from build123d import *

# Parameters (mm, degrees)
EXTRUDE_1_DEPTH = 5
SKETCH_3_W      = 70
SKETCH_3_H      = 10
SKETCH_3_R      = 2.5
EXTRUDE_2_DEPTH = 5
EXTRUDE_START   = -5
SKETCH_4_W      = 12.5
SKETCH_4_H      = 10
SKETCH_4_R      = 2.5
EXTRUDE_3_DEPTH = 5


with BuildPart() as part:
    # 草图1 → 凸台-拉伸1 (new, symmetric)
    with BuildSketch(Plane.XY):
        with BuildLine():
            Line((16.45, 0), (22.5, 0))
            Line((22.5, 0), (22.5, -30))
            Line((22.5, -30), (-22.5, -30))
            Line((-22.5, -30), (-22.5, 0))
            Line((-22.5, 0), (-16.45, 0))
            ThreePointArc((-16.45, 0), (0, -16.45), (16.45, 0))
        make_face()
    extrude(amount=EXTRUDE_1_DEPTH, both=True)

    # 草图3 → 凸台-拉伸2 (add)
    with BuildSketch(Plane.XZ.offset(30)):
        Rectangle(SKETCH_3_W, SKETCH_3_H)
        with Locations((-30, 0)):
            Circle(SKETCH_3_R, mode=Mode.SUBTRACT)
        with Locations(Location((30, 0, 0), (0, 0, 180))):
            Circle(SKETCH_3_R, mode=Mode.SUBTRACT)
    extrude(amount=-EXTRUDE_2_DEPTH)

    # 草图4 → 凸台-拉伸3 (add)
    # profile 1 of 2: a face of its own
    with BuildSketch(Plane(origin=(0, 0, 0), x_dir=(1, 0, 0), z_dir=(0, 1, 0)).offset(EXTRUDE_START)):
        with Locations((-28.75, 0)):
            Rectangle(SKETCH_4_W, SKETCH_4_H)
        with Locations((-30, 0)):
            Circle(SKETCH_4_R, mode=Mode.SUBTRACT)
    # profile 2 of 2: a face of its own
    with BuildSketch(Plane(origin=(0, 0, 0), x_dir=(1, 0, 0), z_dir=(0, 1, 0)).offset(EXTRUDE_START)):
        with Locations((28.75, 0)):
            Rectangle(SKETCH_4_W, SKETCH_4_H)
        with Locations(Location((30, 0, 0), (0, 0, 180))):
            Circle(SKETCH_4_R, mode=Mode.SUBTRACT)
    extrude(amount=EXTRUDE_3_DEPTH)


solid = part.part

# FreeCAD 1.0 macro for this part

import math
import FreeCAD as App
import Part
import Sketcher
from FreeCAD import Vector

doc = App.newDocument("Part")
body = doc.addObject("PartDesign::Body", "Body")

sketch1 = body.newObject("Sketcher::SketchObject", "Sketch")
sketch1.AttachmentSupport = (doc.getObject("XY_Plane"), [""])
sketch1.MapMode = "FlatFace"
sketch1.addGeometry(Part.LineSegment(Vector(22, 0, 0), Vector(16, 0, 0)), False)
sketch1.addGeometry(Part.ArcOfCircle(Part.Circle(Vector(0, 0, 0), Vector(0, 0, 1), 16), math.radians(180), math.radians(360)), False)
sketch1.addGeometry(Part.LineSegment(Vector(-16, 0, 0), Vector(-22, 0, 0)), False)
sketch1.addGeometry(Part.LineSegment(Vector(-22, 0, 0), Vector(-22, -30, 0)), False)
sketch1.addGeometry(Part.LineSegment(Vector(-22, -30, 0), Vector(22, -30, 0)), False)
sketch1.addGeometry(Part.LineSegment(Vector(22, -30, 0), Vector(22, 0, 0)), False)
sketch1.addConstraint(Sketcher.Constraint("Coincident", 0, 2, 1, 2))
sketch1.addConstraint(Sketcher.Constraint("Coincident", 1, 1, 2, 1))
sketch1.addConstraint(Sketcher.Constraint("Coincident", 2, 2, 3, 1))
sketch1.addConstraint(Sketcher.Constraint("Coincident", 3, 2, 4, 1))
sketch1.addConstraint(Sketcher.Constraint("Coincident", 4, 2, 5, 1))
sketch1.addConstraint(Sketcher.Constraint("Coincident", 5, 2, 0, 1))
sketch1.addConstraint(Sketcher.Constraint("Horizontal", 0))
sketch1.addConstraint(Sketcher.Constraint("Horizontal", 2))
sketch1.addConstraint(Sketcher.Constraint("Vertical", 3))
sketch1.addConstraint(Sketcher.Constraint("Horizontal", 4))
sketch1.addConstraint(Sketcher.Constraint("Vertical", 5))
sketch1.addConstraint(Sketcher.Constraint("Coincident", 1, 3, -1, 1))
sketch1.addConstraint(Sketcher.Constraint("Symmetric", 2, 2, 5, 2, -1, 1))
sketch1.addConstraint(Sketcher.Constraint("PointOnObject", 0, 2, -1))
sketch1.addConstraint(Sketcher.Constraint("DistanceX", 4, 1, 4, 2, 45.0))
sketch1.addConstraint(Sketcher.Constraint("DistanceY", 3, 2, 3, 1, 30.0))
sketch1.addConstraint(Sketcher.Constraint("Radius", 1, 16.45))
pad1 = body.newObject("PartDesign::Pad", "Pad")
pad1.Profile = sketch1
pad1.Length = 10
pad1.Midplane = True

sketch2 = body.newObject("Sketcher::SketchObject", "Sketch001")
sketch2.AttachmentSupport = (doc.getObject("XZ_Plane"), [""])
sketch2.MapMode = "FlatFace"
sketch2.AttachmentOffset = App.Placement(Vector(0, 0, 30), App.Rotation())
sketch2.addGeometry(Part.LineSegment(Vector(-35, 5, 0), Vector(-35, -5, 0)), False)
sketch2.addGeometry(Part.LineSegment(Vector(-35, -5, 0), Vector(35, -5, 0)), False)
sketch2.addGeometry(Part.LineSegment(Vector(35, -5, 0), Vector(35, 5, 0)), False)
sketch2.addGeometry(Part.LineSegment(Vector(35, 5, 0), Vector(-35, 5, 0)), False)
sketch2.addGeometry(Part.Circle(Vector(-30, 0, 0), Vector(0, 0, 1), 2.5), False)
sketch2.addGeometry(Part.Circle(Vector(30, 0, 0), Vector(0, 0, 1), 2.5), False)
sketch2.addConstraint(Sketcher.Constraint("Coincident", 0, 2, 1, 1))
sketch2.addConstraint(Sketcher.Constraint("Coincident", 1, 2, 2, 1))
sketch2.addConstraint(Sketcher.Constraint("Coincident", 2, 2, 3, 1))
sketch2.addConstraint(Sketcher.Constraint("Coincident", 3, 2, 0, 1))
sketch2.addConstraint(Sketcher.Constraint("Vertical", 0))
sketch2.addConstraint(Sketcher.Constraint("Horizontal", 1))
sketch2.addConstraint(Sketcher.Constraint("Vertical", 2))
sketch2.addConstraint(Sketcher.Constraint("Horizontal", 3))
sketch2.addConstraint(Sketcher.Constraint("Equal", 4, 5))
sketch2.addConstraint(Sketcher.Constraint("Symmetric", 4, 3, 5, 3, -1, 1))
sketch2.addConstraint(Sketcher.Constraint("Symmetric", 0, 2, 2, 2, -1, 1))
sketch2.addConstraint(Sketcher.Constraint("PointOnObject", 4, 3, -1))
sketch2.addConstraint(Sketcher.Constraint("Diameter", 4, 5.0))
sketch2.addConstraint(Sketcher.Constraint("DistanceX", 1, 1, 1, 2, 70.0))
sketch2.addConstraint(Sketcher.Constraint("DistanceY", 0, 2, 0, 1, 10.0))
sketch2.addConstraint(Sketcher.Constraint("DistanceX", 4, 3, -1, 1, 30.0))
pad2 = body.newObject("PartDesign::Pad", "Pad001")
pad2.Profile = sketch2
pad2.Length = 5
pad2.Reversed = True

sketch3 = body.newObject("Sketcher::SketchObject", "Sketch002")
sketch3.AttachmentSupport = (doc.getObject("XZ_Plane"), [""])
sketch3.MapMode = "FlatFace"
sketch3.AttachmentOffset = App.Placement(Vector(0, 0, 5), App.Rotation())
sketch3.addGeometry(Part.LineSegment(Vector(-35, -5, 0), Vector(-35, 5, 0)), False)
sketch3.addGeometry(Part.LineSegment(Vector(-35, 5, 0), Vector(-22.5, 5, 0)), False)
sketch3.addGeometry(Part.LineSegment(Vector(-22.5, 5, 0), Vector(-22.5, -5, 0)), False)
sketch3.addGeometry(Part.LineSegment(Vector(-22.5, -5, 0), Vector(-35, -5, 0)), False)
sketch3.addGeometry(Part.Circle(Vector(-30, 0, 0), Vector(0, 0, 1), 2.5), False)
sketch3.addGeometry(Part.LineSegment(Vector(22.5, -5, 0), Vector(22.5, 5, 0)), False)
sketch3.addGeometry(Part.LineSegment(Vector(22.5, 5, 0), Vector(35, 5, 0)), False)
sketch3.addGeometry(Part.LineSegment(Vector(35, 5, 0), Vector(35, -5, 0)), False)
sketch3.addGeometry(Part.LineSegment(Vector(35, -5, 0), Vector(22.5, -5, 0)), False)
sketch3.addGeometry(Part.Circle(Vector(30, 0, 0), Vector(0, 0, 1), 2.5), False)
sketch3.addConstraint(Sketcher.Constraint("Coincident", 0, 2, 1, 1))
sketch3.addConstraint(Sketcher.Constraint("Coincident", 1, 2, 2, 1))
sketch3.addConstraint(Sketcher.Constraint("Coincident", 2, 2, 3, 1))
sketch3.addConstraint(Sketcher.Constraint("Coincident", 3, 2, 0, 1))
sketch3.addConstraint(Sketcher.Constraint("Coincident", 5, 2, 6, 1))
sketch3.addConstraint(Sketcher.Constraint("Coincident", 6, 2, 7, 1))
sketch3.addConstraint(Sketcher.Constraint("Coincident", 7, 2, 8, 1))
sketch3.addConstraint(Sketcher.Constraint("Coincident", 8, 2, 5, 1))
sketch3.addConstraint(Sketcher.Constraint("Vertical", 0))
sketch3.addConstraint(Sketcher.Constraint("Horizontal", 1))
sketch3.addConstraint(Sketcher.Constraint("Vertical", 2))
sketch3.addConstraint(Sketcher.Constraint("Horizontal", 3))
sketch3.addConstraint(Sketcher.Constraint("Vertical", 5))
sketch3.addConstraint(Sketcher.Constraint("Horizontal", 6))
sketch3.addConstraint(Sketcher.Constraint("Vertical", 7))
sketch3.addConstraint(Sketcher.Constraint("Horizontal", 8))
sketch3.addConstraint(Sketcher.Constraint("Equal", 4, 9))
sketch3.addConstraint(Sketcher.Constraint("Symmetric", 4, 3, 9, 3, -1, 1))
sketch3.addConstraint(Sketcher.Constraint("Symmetric", 2, 2, 5, 2, -1, 1))
sketch3.addConstraint(Sketcher.Constraint("Symmetric", 0, 2, 7, 2, -1, 1))
sketch3.addConstraint(Sketcher.Constraint("PointOnObject", 4, 3, -1))
sketch3.addConstraint(Sketcher.Constraint("Horizontal", 1, 2, 5, 2))
sketch3.addConstraint(Sketcher.Constraint("Diameter", 4, 5.0))
sketch3.addConstraint(Sketcher.Constraint("DistanceY", 0, 1, 0, 2, 10.0))
sketch3.addConstraint(Sketcher.Constraint("DistanceX", 1, 1, 1, 2, 12.5))
sketch3.addConstraint(Sketcher.Constraint("DistanceX", 4, 3, -1, 1, 30.0))
sketch3.addConstraint(Sketcher.Constraint("DistanceX", 0, 2, -1, 1, 35.0))
pad3 = body.newObject("PartDesign::Pad", "Pad002")
pad3.Profile = sketch3
pad3.Length = 5
pad3.Reversed = True

doc.recompute()
